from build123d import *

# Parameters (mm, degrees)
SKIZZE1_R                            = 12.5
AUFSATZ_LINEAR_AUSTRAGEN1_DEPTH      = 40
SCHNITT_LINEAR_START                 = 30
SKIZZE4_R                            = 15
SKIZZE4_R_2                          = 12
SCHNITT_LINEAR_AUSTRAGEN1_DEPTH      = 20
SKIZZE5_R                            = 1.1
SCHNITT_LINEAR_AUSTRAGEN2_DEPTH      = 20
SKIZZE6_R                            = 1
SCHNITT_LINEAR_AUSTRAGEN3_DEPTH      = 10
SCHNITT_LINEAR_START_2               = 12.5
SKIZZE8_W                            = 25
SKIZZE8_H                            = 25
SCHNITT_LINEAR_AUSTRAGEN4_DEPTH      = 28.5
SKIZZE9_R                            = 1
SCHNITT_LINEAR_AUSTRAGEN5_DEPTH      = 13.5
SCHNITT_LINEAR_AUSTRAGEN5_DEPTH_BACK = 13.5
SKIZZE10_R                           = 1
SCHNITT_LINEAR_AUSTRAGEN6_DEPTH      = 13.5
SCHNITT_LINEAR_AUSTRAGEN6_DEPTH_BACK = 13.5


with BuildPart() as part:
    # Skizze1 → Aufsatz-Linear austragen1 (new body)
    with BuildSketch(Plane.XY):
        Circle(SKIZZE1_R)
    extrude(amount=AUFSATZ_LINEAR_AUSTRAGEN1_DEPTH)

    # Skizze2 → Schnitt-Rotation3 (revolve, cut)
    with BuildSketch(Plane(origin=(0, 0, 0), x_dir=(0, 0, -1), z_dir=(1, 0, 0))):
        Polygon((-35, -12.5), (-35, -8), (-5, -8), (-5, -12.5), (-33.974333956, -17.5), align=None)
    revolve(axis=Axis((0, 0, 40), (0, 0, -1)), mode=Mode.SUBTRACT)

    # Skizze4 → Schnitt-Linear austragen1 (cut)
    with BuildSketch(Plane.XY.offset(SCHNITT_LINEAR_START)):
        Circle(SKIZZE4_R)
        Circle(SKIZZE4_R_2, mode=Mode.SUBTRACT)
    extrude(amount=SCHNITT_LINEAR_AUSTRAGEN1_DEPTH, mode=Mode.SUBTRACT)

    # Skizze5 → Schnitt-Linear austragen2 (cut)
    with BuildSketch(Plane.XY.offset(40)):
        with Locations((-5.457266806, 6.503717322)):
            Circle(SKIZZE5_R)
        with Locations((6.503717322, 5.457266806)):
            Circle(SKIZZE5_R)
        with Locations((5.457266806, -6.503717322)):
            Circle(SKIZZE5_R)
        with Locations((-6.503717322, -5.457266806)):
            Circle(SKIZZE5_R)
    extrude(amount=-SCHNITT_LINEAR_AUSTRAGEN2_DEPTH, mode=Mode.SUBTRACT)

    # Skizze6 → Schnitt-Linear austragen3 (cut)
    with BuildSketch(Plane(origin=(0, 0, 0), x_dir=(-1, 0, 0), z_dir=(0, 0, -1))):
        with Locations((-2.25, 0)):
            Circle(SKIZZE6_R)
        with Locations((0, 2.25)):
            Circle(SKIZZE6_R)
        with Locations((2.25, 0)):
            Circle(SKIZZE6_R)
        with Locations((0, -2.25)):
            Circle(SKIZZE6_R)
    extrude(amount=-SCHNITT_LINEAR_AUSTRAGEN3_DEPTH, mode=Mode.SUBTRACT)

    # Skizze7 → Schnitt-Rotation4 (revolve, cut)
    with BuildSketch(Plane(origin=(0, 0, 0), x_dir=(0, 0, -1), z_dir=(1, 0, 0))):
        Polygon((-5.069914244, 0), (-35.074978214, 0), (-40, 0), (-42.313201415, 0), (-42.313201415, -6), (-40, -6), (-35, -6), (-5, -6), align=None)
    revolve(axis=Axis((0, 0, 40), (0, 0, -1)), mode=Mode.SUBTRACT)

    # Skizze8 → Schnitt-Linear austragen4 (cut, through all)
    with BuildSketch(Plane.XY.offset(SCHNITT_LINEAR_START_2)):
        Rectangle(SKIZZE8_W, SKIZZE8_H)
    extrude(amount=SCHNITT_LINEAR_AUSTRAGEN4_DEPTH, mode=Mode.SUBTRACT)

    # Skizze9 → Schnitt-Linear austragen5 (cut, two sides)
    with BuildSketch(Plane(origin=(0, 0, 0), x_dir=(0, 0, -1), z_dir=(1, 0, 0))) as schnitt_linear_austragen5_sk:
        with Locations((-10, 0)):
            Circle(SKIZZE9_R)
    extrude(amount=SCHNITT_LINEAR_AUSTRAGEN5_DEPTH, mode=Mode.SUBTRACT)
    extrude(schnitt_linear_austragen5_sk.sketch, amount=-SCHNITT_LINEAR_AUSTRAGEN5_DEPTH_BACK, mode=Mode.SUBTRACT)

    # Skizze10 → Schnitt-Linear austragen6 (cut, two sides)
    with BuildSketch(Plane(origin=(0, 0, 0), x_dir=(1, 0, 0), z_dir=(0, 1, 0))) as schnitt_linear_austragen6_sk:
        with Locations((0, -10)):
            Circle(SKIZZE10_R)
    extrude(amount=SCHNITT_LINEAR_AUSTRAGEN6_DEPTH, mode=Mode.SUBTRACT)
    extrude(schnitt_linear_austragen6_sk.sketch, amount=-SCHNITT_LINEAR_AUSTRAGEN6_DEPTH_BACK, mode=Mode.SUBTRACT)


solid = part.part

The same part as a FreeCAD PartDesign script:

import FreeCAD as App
import Part
import Sketcher

V = App.Vector
Q = App.Units.Quantity

doc = App.newDocument("Part")
params = doc.addObject("Spreadsheet::Sheet", "Params")
for row, (alias, value) in enumerate([
    ("sketch1_diameter", "25 mm"),
    ("pad1_length", "40 mm"),
    ("sketch2_height", "30 mm"),
    ("sketch2_width", "4.5 mm"),
    ("groove_angle", "360 deg"),
    ("sketch3_diameter", "30 mm"),
    ("sketch3_diameter2", "24 mm"),
    ("pocket1_length", "20 mm"),
    ("sketch4_diameter", "2.2 mm"),
    ("pocket2_length", "20 mm"),
    ("sketch5_diameter", "2 mm"),
    ("pocket3_length", "10 mm"),
    ("sketch6_width", "6 mm"),
    ("groove2_angle", "360 deg"),
    ("sketch7_width", "25 mm"),
    ("sketch8_diameter", "2 mm"),
    ("sketch9_diameter", "2 mm"),
], start=1):
    params.set(f"A{row}", alias)
    params.set(f"B{row}", "=" + value)
    params.setAlias(f"B{row}", alias)

body = doc.addObject("PartDesign::Body", "Body")

# Sketch on XY plane
sketch1 = doc.addObject("Sketcher::SketchObject", "Sketch")
body.addObject(sketch1)
sketch1.AttachmentSupport = (doc.XY_Plane, [""])
sketch1.MapMode = "FlatFace"
sketch1.addGeometry(Part.Circle(V(0, 0, 0), V(0, 0, 1), 12.5), False)
sketch1.addConstraint(Sketcher.Constraint("Coincident", 0, 3, -1, 1))
sketch1.addConstraint(Sketcher.Constraint("Diameter", 0, Q("25 mm")))
sketch1.setExpression("Constraints[1]", "Params.sketch1_diameter")
pad1 = doc.addObject("PartDesign::Pad", "Pad")
body.addObject(pad1)
pad1.Profile = sketch1
pad1.setExpression("Length", "Params.pad1_length")

# Sketch on YZ plane
sketch2 = doc.addObject("Sketcher::SketchObject", "Sketch001")
body.addObject(sketch2)
sketch2.AttachmentSupport = (doc.YZ_Plane, [""])
sketch2.MapMode = "FlatFace"
sketch2.addGeometry(Part.LineSegment(V(-8, 35, 0), V(-12.5, 35, 0)), False)
sketch2.addGeometry(Part.LineSegment(V(-12.5, 35, 0), V(-17.5, 33.974334, 0)), False)
sketch2.addGeometry(Part.LineSegment(V(-17.5, 33.974334, 0), V(-12.5, 5, 0)), False)
sketch2.addGeometry(Part.LineSegment(V(-12.5, 5, 0), V(-8, 5, 0)), False)
sketch2.addGeometry(Part.LineSegment(V(-8, 5, 0), V(-8, 35, 0)), False)
sketch2.addConstraint(Sketcher.Constraint("Coincident", 0, 2, 1, 1))
sketch2.addConstraint(Sketcher.Constraint("Coincident", 1, 2, 2, 1))
sketch2.addConstraint(Sketcher.Constraint("Coincident", 2, 2, 3, 1))
sketch2.addConstraint(Sketcher.Constraint("Coincident", 3, 2, 4, 1))
sketch2.addConstraint(Sketcher.Constraint("Coincident", 4, 2, 0, 1))
sketch2.addConstraint(Sketcher.Constraint("Horizontal", 0))
sketch2.addConstraint(Sketcher.Constraint("Horizontal", 3))
sketch2.addConstraint(Sketcher.Constraint("Vertical", 4))
sketch2.addConstraint(Sketcher.Constraint("Vertical", 0, 2, 2, 2))
sketch2.addConstraint(Sketcher.Constraint("DistanceY", 4, 1, 4, 2, Q("30 mm")))
sketch2.addConstraint(Sketcher.Constraint("DistanceX", 0, 2, 0, 1, Q("4.5 mm")))
sketch2.addConstraint(Sketcher.Constraint("DistanceY", -1, 1, 0, 2, Q("35 mm")))
sketch2.addConstraint(Sketcher.Constraint("DistanceX", 3, 2, -1, 1, Q("8 mm")))
sketch2.addConstraint(Sketcher.Constraint("DistanceX", 1, 2, 0, 2, Q("5 mm")))
sketch2.addConstraint(Sketcher.Constraint("Distance", 1, Q("5.104115 mm")))
sketch2.setExpression("Constraints[9]", "Params.sketch2_height")
sketch2.setExpression("Constraints[10]", "Params.sketch2_width")
groove = doc.addObject("PartDesign::Groove", "Groove")
body.addObject(groove)
groove.Profile = sketch2
groove.ReferenceAxis = (sketch2, ["V_Axis"])
groove.setExpression("Angle", "Params.groove_angle")

# Sketch on XY plane
sketch3 = doc.addObject("Sketcher::SketchObject", "Sketch002")
body.addObject(sketch3)
sketch3.AttachmentSupport = (doc.XY_Plane, [""])
sketch3.MapMode = "FlatFace"
sketch3.AttachmentOffset = App.Placement(V(0, 0, 30), App.Rotation())
sketch3.addGeometry(Part.Circle(V(0, 0, 0), V(0, 0, 1), 15), False)
sketch3.addGeometry(Part.Circle(V(0, 0, 0), V(0, 0, 1), 12), False)
sketch3.addConstraint(Sketcher.Constraint("Coincident", 0, 3, -1, 1))
sketch3.addConstraint(Sketcher.Constraint("Coincident", 1, 3, -1, 1))
sketch3.addConstraint(Sketcher.Constraint("Diameter", 0, Q("30 mm")))
sketch3.addConstraint(Sketcher.Constraint("Diameter", 1, Q("24 mm")))
sketch3.setExpression("Constraints[2]", "Params.sketch3_diameter")
sketch3.setExpression("Constraints[3]", "Params.sketch3_diameter2")
pocket1 = doc.addObject("PartDesign::Pocket", "Pocket")
body.addObject(pocket1)
pocket1.Profile = sketch3
pocket1.setExpression("Length", "Params.pocket1_length")
pocket1.Reversed = True

# Sketch on XY plane
sketch4 = doc.addObject("Sketcher::SketchObject", "Sketch003")
body.addObject(sketch4)
sketch4.AttachmentSupport = (doc.XY_Plane, [""])
sketch4.MapMode = "FlatFace"
sketch4.AttachmentOffset = App.Placement(V(0, 0, 40), App.Rotation())
sketch4.addGeometry(Part.Circle(V(-5.457267, 6.503717, 0), V(0, 0, 1), 1.1), False)
sketch4.addGeometry(Part.Circle(V(6.503717, 5.457267, 0), V(0, 0, 1), 1.1), False)
sketch4.addGeometry(Part.Circle(V(5.457267, -6.503717, 0), V(0, 0, 1), 1.1), False)
sketch4.addGeometry(Part.Circle(V(-6.503717, -5.457267, 0), V(0, 0, 1), 1.1), False)
sketch4.addConstraint(Sketcher.Constraint("Equal", 0, 1))
sketch4.addConstraint(Sketcher.Constraint("Equal", 1, 2))
sketch4.addConstraint(Sketcher.Constraint("Equal", 2, 3))
sketch4.addConstraint(Sketcher.Constraint("Symmetric", 0, 3, 2, 3, -1, 1))
sketch4.addConstraint(Sketcher.Constraint("Symmetric", 1, 3, 3, 3, -1, 1))
sketch4.addConstraint(Sketcher.Constraint("Diameter", 0, Q("2.2 mm")))
sketch4.addConstraint(Sketcher.Constraint("DistanceY", 1, 3, 0, 3, Q("1.046451 mm")))
sketch4.addConstraint(Sketcher.Constraint("DistanceX", 2, 3, 1, 3, Q("1.046451 mm")))
sketch4.addConstraint(Sketcher.Constraint("DistanceX", 0, 3, -1, 1, Q("5.457267 mm")))
sketch4.addConstraint(Sketcher.Constraint("DistanceY", -1, 1, 0, 3, Q("6.503717 mm")))
sketch4.setExpression("Constraints[5]", "Params.sketch4_diameter")
pocket2 = doc.addObject("PartDesign::Pocket", "Pocket001")
body.addObject(pocket2)
pocket2.Profile = sketch4
pocket2.setExpression("Length", "Params.pocket2_length")

# Sketch on XY plane
sketch5 = doc.addObject("Sketcher::SketchObject", "Sketch004")
body.addObject(sketch5)
sketch5.AttachmentSupport = (doc.XY_Plane, [""])
sketch5.MapMode = "FlatFace"
sketch5.addGeometry(Part.Circle(V(2.25, 0, 0), V(0, 0, 1), 1), False)
sketch5.addGeometry(Part.Circle(V(0, 2.25, 0), V(0, 0, 1), 1), False)
sketch5.addGeometry(Part.Circle(V(-2.25, 0, 0), V(0, 0, 1), 1), False)
sketch5.addGeometry(Part.Circle(V(0, -2.25, 0), V(0, 0, 1), 1), False)
sketch5.addConstraint(Sketcher.Constraint("Equal", 0, 1))
sketch5.addConstraint(Sketcher.Constraint("Equal", 1, 2))
sketch5.addConstraint(Sketcher.Constraint("Equal", 2, 3))
sketch5.addConstraint(Sketcher.Constraint("Symmetric", 0, 3, 2, 3, -1, 1))
sketch5.addConstraint(Sketcher.Constraint("Symmetric", 1, 3, 3, 3, -1, 1))
sketch5.addConstraint(Sketcher.Constraint("PointOnObject", 0, 3, -1))
sketch5.addConstraint(Sketcher.Constraint("PointOnObject", 1, 3, -2))
sketch5.addConstraint(Sketcher.Constraint("Diameter", 0, Q("2 mm")))
sketch5.addConstraint(Sketcher.Constraint("DistanceX", 2, 3, 0, 3, Q("4.5 mm")))
sketch5.addConstraint(Sketcher.Constraint("DistanceY", 3, 3, 1, 3, Q("4.5 mm")))
sketch5.setExpression("Constraints[7]", "Params.sketch5_diameter")
pocket3 = doc.addObject("PartDesign::Pocket", "Pocket002")
body.addObject(pocket3)
pocket3.Profile = sketch5
pocket3.setExpression("Length", "Params.pocket3_length")
pocket3.Reversed = True

# Sketch on YZ plane
sketch6 = doc.addObject("Sketcher::SketchObject", "Sketch005")
body.addObject(sketch6)
sketch6.AttachmentSupport = (doc.YZ_Plane, [""])
sketch6.MapMode = "FlatFace"
sketch6.addGeometry(Part.LineSegment(V(0, 5.069914, 0), V(0, 42.313201, 0)), False)
sketch6.addGeometry(Part.LineSegment(V(0, 42.313201, 0), V(-6, 42.313201, 0)), False)
sketch6.addGeometry(Part.LineSegment(V(-6, 42.313201, 0), V(-6, 5, 0)), False)
sketch6.addGeometry(Part.LineSegment(V(-6, 5, 0), V(0, 5.069914, 0)), False)
sketch6.addConstraint(Sketcher.Constraint("Coincident", 0, 2, 1, 1))
sketch6.addConstraint(Sketcher.Constraint("Coincident", 1, 2, 2, 1))
sketch6.addConstraint(Sketcher.Constraint("Coincident", 2, 2, 3, 1))
sketch6.addConstraint(Sketcher.Constraint("Coincident", 3, 2, 0, 1))
sketch6.addConstraint(Sketcher.Constraint("Vertical", 0))
sketch6.addConstraint(Sketcher.Constraint("Horizontal", 1))
sketch6.addConstraint(Sketcher.Constraint("Vertical", 2))
sketch6.addConstraint(Sketcher.Constraint("PointOnObject", 0, 2, -2))
sketch6.addConstraint(Sketcher.Constraint("DistanceX", 1, 2, 1, 1, Q("6 mm")))
sketch6.addConstraint(Sketcher.Constraint("DistanceY", -1, 1, 2, 2, Q("5 mm")))
sketch6.addConstraint(Sketcher.Constraint("DistanceY", 2, 2, 2, 1, Q("37.313201 mm")))
sketch6.addConstraint(Sketcher.Constraint("DistanceY", 0, 1, 0, 2, Q("37.243287 mm")))
sketch6.setExpression("Constraints[8]", "Params.sketch6_width")
groove2 = doc.addObject("PartDesign::Groove", "Groove001")
body.addObject(groove2)
groove2.Profile = sketch6
groove2.ReferenceAxis = (sketch6, ["V_Axis"])
groove2.setExpression("Angle", "Params.groove2_angle")

# Sketch on XY plane
sketch7 = doc.addObject("Sketcher::SketchObject", "Sketch006")
body.addObject(sketch7)
sketch7.AttachmentSupport = (doc.XY_Plane, [""])
sketch7.MapMode = "FlatFace"
sketch7.AttachmentOffset = App.Placement(V(0, 0, 12.5), App.Rotation())
sketch7.addGeometry(Part.LineSegment(V(-12.5, 12.5, 0), V(-12.5, -12.5, 0)), False)
sketch7.addGeometry(Part.LineSegment(V(-12.5, -12.5, 0), V(12.5, -12.5, 0)), False)
sketch7.addGeometry(Part.LineSegment(V(12.5, -12.5, 0), V(12.5, 12.5, 0)), False)
sketch7.addGeometry(Part.LineSegment(V(12.5, 12.5, 0), V(-12.5, 12.5, 0)), False)
sketch7.addConstraint(Sketcher.Constraint("Coincident", 0, 2, 1, 1))
sketch7.addConstraint(Sketcher.Constraint("Coincident", 1, 2, 2, 1))
sketch7.addConstraint(Sketcher.Constraint("Coincident", 2, 2, 3, 1))
sketch7.addConstraint(Sketcher.Constraint("Coincident", 3, 2, 0, 1))
sketch7.addConstraint(Sketcher.Constraint("Vertical", 0))
sketch7.addConstraint(Sketcher.Constraint("Horizontal", 1))
sketch7.addConstraint(Sketcher.Constraint("Vertical", 2))
sketch7.addConstraint(Sketcher.Constraint("Horizontal", 3))
sketch7.addConstraint(Sketcher.Constraint("Symmetric", 0, 2, 2, 2, -1, 1))
sketch7.addConstraint(Sketcher.Constraint("Equal", 3, 0))
sketch7.addConstraint(Sketcher.Constraint("DistanceX", 1, 1, 1, 2, Q("25 mm")))
sketch7.setExpression("Constraints[10]", "Params.sketch7_width")
pocket4 = doc.addObject("PartDesign::Pocket", "Pocket003")
body.addObject(pocket4)
pocket4.Profile = sketch7
pocket4.Type = "ThroughAll"
pocket4.Reversed = True

# Sketch on YZ plane
sketch8 = doc.addObject("Sketcher::SketchObject", "Sketch007")
body.addObject(sketch8)
sketch8.AttachmentSupport = (doc.YZ_Plane, [""])
sketch8.MapMode = "FlatFace"
sketch8.addGeometry(Part.Circle(V(0, 10, 0), V(0, 0, 1), 1), False)
sketch8.addConstraint(Sketcher.Constraint("PointOnObject", 0, 3, -2))
sketch8.addConstraint(Sketcher.Constraint("Diameter", 0, Q("2 mm")))
sketch8.addConstraint(Sketcher.Constraint("DistanceY", -1, 1, 0, 3, Q("10 mm")))
sketch8.setExpression("Constraints[1]", "Params.sketch8_diameter")
pocket5 = doc.addObject("PartDesign::Pocket", "Pocket004")
body.addObject(pocket5)
pocket5.Profile = sketch8
pocket5.Type = "ThroughAll"
pocket5.Midplane = True

# Sketch on XZ plane
sketch9 = doc.addObject("Sketcher::SketchObject", "Sketch008")
body.addObject(sketch9)
sketch9.AttachmentSupport = (doc.XZ_Plane, [""])
sketch9.MapMode = "FlatFace"
sketch9.addGeometry(Part.Circle(V(0, 10, 0), V(0, 0, 1), 1), False)
sketch9.addConstraint(Sketcher.Constraint("PointOnObject", 0, 3, -2))
sketch9.addConstraint(Sketcher.Constraint("Diameter", 0, Q("2 mm")))
sketch9.addConstraint(Sketcher.Constraint("DistanceY", -1, 1, 0, 3, Q("10 mm")))
sketch9.setExpression("Constraints[1]", "Params.sketch9_diameter")
pocket6 = doc.addObject("PartDesign::Pocket", "Pocket005")
body.addObject(pocket6)
pocket6.Profile = sketch9
pocket6.Type = "ThroughAll"
pocket6.Midplane = True

doc.recompute()
